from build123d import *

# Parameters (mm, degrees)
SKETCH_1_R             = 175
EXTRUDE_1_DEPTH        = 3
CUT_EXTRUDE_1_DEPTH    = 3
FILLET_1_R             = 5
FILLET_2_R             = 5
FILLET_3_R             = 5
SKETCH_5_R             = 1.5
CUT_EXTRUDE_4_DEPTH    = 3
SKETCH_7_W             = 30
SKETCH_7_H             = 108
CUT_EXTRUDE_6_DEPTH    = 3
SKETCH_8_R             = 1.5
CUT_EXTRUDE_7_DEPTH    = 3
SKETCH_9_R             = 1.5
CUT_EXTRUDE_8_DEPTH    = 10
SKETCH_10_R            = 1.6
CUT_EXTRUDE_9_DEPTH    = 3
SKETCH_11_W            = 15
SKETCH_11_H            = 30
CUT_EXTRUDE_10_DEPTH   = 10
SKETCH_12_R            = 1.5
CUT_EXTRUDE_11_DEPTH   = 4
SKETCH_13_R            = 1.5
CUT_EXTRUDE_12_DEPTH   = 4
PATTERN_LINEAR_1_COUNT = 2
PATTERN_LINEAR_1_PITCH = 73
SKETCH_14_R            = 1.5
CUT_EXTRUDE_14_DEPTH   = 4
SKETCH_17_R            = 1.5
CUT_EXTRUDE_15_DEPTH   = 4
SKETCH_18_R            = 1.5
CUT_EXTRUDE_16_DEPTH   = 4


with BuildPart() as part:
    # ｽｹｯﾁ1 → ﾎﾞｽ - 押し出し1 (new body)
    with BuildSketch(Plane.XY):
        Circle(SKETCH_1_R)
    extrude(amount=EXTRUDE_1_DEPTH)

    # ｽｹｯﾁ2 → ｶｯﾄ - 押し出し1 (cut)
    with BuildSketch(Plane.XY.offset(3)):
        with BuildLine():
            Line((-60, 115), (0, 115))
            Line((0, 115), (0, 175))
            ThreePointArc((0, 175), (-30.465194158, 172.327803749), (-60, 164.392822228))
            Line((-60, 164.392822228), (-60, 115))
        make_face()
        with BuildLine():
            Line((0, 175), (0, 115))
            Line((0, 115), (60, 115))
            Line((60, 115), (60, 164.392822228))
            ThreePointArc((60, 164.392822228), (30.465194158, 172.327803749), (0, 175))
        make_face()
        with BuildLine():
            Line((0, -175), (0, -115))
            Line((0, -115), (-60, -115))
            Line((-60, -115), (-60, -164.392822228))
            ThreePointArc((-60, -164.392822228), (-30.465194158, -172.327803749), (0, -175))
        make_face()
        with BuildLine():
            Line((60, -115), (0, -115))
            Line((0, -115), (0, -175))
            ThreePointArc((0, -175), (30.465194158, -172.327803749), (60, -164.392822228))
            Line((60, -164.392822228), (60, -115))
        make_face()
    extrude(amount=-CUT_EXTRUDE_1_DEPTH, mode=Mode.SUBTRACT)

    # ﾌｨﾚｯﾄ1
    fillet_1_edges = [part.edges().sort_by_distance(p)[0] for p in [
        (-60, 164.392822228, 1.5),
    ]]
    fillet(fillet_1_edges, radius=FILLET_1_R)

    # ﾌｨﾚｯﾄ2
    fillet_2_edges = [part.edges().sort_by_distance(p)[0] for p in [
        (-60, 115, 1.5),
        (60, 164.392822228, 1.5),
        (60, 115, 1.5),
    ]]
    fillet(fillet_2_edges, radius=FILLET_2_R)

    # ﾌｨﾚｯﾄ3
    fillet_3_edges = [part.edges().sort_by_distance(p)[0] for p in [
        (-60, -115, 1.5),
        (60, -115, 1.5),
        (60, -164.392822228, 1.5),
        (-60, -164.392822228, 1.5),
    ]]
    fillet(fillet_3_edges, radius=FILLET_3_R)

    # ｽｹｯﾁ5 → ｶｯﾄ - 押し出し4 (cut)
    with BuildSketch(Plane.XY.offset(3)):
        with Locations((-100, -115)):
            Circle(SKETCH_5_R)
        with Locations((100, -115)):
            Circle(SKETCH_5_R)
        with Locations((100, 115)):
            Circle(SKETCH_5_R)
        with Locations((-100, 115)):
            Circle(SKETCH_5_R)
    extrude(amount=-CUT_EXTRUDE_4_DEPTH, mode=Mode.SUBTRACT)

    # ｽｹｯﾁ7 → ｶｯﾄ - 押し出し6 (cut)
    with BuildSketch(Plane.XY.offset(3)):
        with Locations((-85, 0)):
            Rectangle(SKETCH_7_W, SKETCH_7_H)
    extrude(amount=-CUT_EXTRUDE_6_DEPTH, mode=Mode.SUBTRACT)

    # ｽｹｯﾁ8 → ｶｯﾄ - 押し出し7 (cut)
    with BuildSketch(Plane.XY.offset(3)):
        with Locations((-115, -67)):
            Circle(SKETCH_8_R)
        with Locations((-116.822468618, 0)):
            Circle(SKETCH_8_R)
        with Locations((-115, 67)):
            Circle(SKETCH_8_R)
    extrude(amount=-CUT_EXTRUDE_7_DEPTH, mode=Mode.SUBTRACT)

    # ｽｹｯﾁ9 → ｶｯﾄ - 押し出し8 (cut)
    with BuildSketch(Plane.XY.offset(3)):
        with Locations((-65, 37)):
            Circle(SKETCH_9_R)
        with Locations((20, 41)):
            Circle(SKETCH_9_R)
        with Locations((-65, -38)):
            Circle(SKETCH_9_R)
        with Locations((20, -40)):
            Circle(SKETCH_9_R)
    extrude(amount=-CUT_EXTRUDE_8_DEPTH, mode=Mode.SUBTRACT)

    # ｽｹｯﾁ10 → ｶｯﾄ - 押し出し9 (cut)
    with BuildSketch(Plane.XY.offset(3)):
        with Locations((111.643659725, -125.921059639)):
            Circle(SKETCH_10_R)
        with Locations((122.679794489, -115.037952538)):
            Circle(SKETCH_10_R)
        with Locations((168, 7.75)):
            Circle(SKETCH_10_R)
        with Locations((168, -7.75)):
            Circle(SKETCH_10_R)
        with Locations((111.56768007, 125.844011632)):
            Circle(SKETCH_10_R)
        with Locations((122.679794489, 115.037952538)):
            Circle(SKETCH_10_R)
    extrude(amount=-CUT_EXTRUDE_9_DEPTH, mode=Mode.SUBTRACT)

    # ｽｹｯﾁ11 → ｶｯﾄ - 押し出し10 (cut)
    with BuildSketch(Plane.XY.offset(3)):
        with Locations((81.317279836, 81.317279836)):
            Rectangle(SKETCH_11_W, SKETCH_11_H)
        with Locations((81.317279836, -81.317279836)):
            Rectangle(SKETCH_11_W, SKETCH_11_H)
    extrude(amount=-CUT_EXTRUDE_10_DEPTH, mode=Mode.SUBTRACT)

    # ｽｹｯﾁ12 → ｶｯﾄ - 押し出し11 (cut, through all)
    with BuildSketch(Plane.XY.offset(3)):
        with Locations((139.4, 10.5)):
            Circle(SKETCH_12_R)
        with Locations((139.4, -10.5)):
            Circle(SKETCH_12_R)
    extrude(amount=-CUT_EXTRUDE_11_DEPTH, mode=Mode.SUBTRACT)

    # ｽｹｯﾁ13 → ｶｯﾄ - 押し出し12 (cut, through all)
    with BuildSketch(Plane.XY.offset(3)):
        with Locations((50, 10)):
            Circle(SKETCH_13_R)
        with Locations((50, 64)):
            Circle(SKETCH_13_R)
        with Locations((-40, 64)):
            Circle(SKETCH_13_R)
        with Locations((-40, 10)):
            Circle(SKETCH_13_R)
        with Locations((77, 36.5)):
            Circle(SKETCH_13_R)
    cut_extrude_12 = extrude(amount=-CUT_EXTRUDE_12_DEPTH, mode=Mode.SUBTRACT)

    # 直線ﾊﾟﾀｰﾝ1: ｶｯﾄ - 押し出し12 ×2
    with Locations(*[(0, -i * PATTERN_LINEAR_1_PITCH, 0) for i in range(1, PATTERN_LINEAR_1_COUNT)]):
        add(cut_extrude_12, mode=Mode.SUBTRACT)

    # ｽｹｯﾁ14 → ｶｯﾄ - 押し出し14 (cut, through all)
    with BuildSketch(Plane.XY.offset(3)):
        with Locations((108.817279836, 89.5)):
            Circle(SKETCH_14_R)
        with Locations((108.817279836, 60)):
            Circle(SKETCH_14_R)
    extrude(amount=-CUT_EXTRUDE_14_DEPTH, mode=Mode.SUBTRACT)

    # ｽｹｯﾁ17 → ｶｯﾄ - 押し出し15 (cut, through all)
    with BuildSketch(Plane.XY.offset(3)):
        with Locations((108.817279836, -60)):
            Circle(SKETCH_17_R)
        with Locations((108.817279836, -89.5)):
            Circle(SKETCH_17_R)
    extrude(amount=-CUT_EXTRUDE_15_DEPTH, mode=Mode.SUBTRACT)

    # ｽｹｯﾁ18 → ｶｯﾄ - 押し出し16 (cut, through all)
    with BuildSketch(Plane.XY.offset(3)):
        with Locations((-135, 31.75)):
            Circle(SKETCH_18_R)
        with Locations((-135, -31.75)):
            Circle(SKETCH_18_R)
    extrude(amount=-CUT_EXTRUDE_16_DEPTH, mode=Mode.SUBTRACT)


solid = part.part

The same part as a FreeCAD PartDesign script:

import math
import FreeCAD as App
import Part
import Sketcher

V = App.Vector


def edges_at(feature, points):
    """Names of the edges that pass closest to the given points."""
    edges = feature.Shape.Edges
    near = lambda p: min(range(len(edges)), key=lambda i: edges[i].distToShape(Part.Vertex(*p))[0])
    return sorted({f"Edge{near(p) + 1}" for p in points})

doc = App.newDocument("Part")
body = doc.addObject("PartDesign::Body", "Body")

sketch1 = doc.addObject("Sketcher::SketchObject", "Sketch")
body.addObject(sketch1)
sketch1.AttachmentSupport = (doc.XY_Plane, [""])
sketch1.MapMode = "FlatFace"
sketch1.addGeometry(Part.Circle(V(0, 0, 0), V(0, 0, 1), 175), False)
sketch1.addConstraint([
    Sketcher.Constraint("Coincident", 0, 3, -1, 1),
    Sketcher.Constraint("Diameter", 0, 350.0),
])
pad1 = doc.addObject("PartDesign::Pad", "Pad")
body.addObject(pad1)
pad1.Profile = sketch1
pad1.Length = 3

sketch2 = doc.addObject("Sketcher::SketchObject", "Sketch001")
body.addObject(sketch2)
sketch2.AttachmentSupport = (doc.XY_Plane, [""])
sketch2.MapMode = "FlatFace"
sketch2.AttachmentOffset = App.Placement(V(0, 0, 3), App.Rotation())
sketch2.addGeometry([
    Part.LineSegment(V(-60, 115, 0), V(60, 115, 0)),
    Part.LineSegment(V(60, 115, 0), V(60, 164, 0)),
    Part.ArcOfCircle(Part.Circle(V(0, 0, 0), V(0, 0, 1), 175), math.radians(70), math.radians(90)),
    Part.ArcOfCircle(Part.Circle(V(0, 0, 0), V(0, 0, 1), 175), math.radians(90), math.radians(110)),
    Part.LineSegment(V(-60, 164, 0), V(-60, 115, 0)),
    Part.LineSegment(V(-60, -115, 0), V(-60, -164, 0)),
    Part.ArcOfCircle(Part.Circle(V(0, 0, 0), V(0, 0, 1), 175), math.radians(-110), math.radians(-90)),
    Part.ArcOfCircle(Part.Circle(V(0, 0, 0), V(0, 0, 1), 175), math.radians(-90), math.radians(-70)),
    Part.LineSegment(V(60, -164, 0), V(60, -115, 0)),
    Part.LineSegment(V(60, -115, 0), V(-60, -115, 0)),
], False)
sketch2.addConstraint([
    Sketcher.Constraint("Coincident", 0, 2, 1, 1),
    Sketcher.Constraint("Coincident", 1, 2, 2, 1),
    Sketcher.Constraint("Tangent", 2, 2, 3, 1),
    Sketcher.Constraint("Coincident", 3, 2, 4, 1),
    Sketcher.Constraint("Coincident", 4, 2, 0, 1),
    Sketcher.Constraint("Coincident", 5, 2, 6, 1),
    Sketcher.Constraint("Tangent", 6, 2, 7, 1),
    Sketcher.Constraint("Coincident", 7, 2, 8, 1),
    Sketcher.Constraint("Coincident", 8, 2, 9, 1),
    Sketcher.Constraint("Coincident", 9, 2, 5, 1),
    Sketcher.Constraint("Horizontal", 0),
    Sketcher.Constraint("Vertical", 1),
    Sketcher.Constraint("Vertical", 4),
    Sketcher.Constraint("Vertical", 5),
    Sketcher.Constraint("Vertical", 8),
    Sketcher.Constraint("Horizontal", 9),
    Sketcher.Constraint("Coincident", 2, 3, -1, 1),
    Sketcher.Constraint("Coincident", 6, 3, -1, 1),
    Sketcher.Constraint("Equal", 2, 3),
    Sketcher.Constraint("Equal", 3, 6),
    Sketcher.Constraint("Equal", 6, 7),
    Sketcher.Constraint("Symmetric", 4, 2, 8, 2, -1, 1),
    Sketcher.Constraint("PointOnObject", 2, 2, -2),
    Sketcher.Constraint("PointOnObject", 6, 2, -2),
    Sketcher.Constraint("Horizontal", 1, 2, 3, 2),
    Sketcher.Constraint("Horizontal", 5, 2, 7, 2),
    Sketcher.Constraint("Radius", 2, 175.0),
    Sketcher.Constraint("DistanceX", 0, 1, 0, 2, 120.0),
    Sketcher.Constraint("DistanceY", -1, 1, 0, 2, 115.0),
])
pocket1 = doc.addObject("PartDesign::Pocket", "Pocket")
body.addObject(pocket1)
pocket1.Profile = sketch2
pocket1.Length = 3
doc.recompute()

fillet = doc.addObject("PartDesign::Fillet", "Fillet")
body.addObject(fillet)
fillet.Base = (pocket1, edges_at(pocket1, [(-60, 164.393, 1.5)]))
fillet.Radius = 5
doc.recompute()

fillet2 = doc.addObject("PartDesign::Fillet", "Fillet001")
body.addObject(fillet2)
fillet2.Base = (fillet, edges_at(fillet, [(-60, 115, 1.5), (60, 164.393, 1.5), (60, 115, 1.5)]))
fillet2.Radius = 5
doc.recompute()

fillet3 = doc.addObject("PartDesign::Fillet", "Fillet002")
body.addObject(fillet3)
fillet3.Base = (fillet2, edges_at(fillet2, [
    (-60, -115, 1.5),
    (60, -115, 1.5),
    (60, -164.393, 1.5),
    (-60, -164.393, 1.5),
]))
fillet3.Radius = 5

sketch3 = doc.addObject("Sketcher::SketchObject", "Sketch002")
body.addObject(sketch3)
sketch3.AttachmentSupport = (doc.XY_Plane, [""])
sketch3.MapMode = "FlatFace"
sketch3.AttachmentOffset = App.Placement(V(0, 0, 3), App.Rotation())
sketch3.addGeometry([
    Part.Circle(V(-100, -115, 0), V(0, 0, 1), 1.5),
    Part.Circle(V(100, -115, 0), V(0, 0, 1), 1.5),
    Part.Circle(V(100, 115, 0), V(0, 0, 1), 1.5),
    Part.Circle(V(-100, 115, 0), V(0, 0, 1), 1.5),
], False)
sketch3.addConstraint([
    Sketcher.Constraint("Equal", 0, 1),
    Sketcher.Constraint("Equal", 1, 2),
    Sketcher.Constraint("Equal", 2, 3),
    Sketcher.Constraint("Symmetric", 0, 3, 2, 3, -1, 1),
    Sketcher.Constraint("Symmetric", 1, 3, 3, 3, -1, 1),
    Sketcher.Constraint("Symmetric", 0, 3, 1, 3, -2),
    Sketcher.Constraint("Diameter", 0, 3.0),
    Sketcher.Constraint("DistanceX", 0, 3, -1, 1, 100.0),
    Sketcher.Constraint("DistanceY", 0, 3, -1, 1, 115.0),
])
pocket2 = doc.addObject("PartDesign::Pocket", "Pocket001")
body.addObject(pocket2)
pocket2.Profile = sketch3
pocket2.Length = 3

sketch4 = doc.addObject("Sketcher::SketchObject", "Sketch003")
body.addObject(sketch4)
sketch4.AttachmentSupport = (doc.XY_Plane, [""])
sketch4.MapMode = "FlatFace"
sketch4.AttachmentOffset = App.Placement(V(0, 0, 3), App.Rotation())
sketch4.addGeometry([
    Part.LineSegment(V(-100, 54, 0), V(-100, -54, 0)),
    Part.LineSegment(V(-100, -54, 0), V(-70, -54, 0)),
    Part.LineSegment(V(-70, -54, 0), V(-70, 54, 0)),
    Part.LineSegment(V(-70, 54, 0), V(-100, 54, 0)),
], False)
sketch4.addConstraint([
    Sketcher.Constraint("Coincident", 0, 2, 1, 1),
    Sketcher.Constraint("Coincident", 1, 2, 2, 1),
    Sketcher.Constraint("Coincident", 2, 2, 3, 1),
    Sketcher.Constraint("Coincident", 3, 2, 0, 1),
    Sketcher.Constraint("Vertical", 0),
    Sketcher.Constraint("Horizontal", 1),
    Sketcher.Constraint("Vertical", 2),
    Sketcher.Constraint("Horizontal", 3),
    Sketcher.Constraint("DistanceX", 1, 1, 1, 2, 30.0),
    Sketcher.Constraint("DistanceY", 0, 2, 0, 1, 108.0),
    Sketcher.Constraint("DistanceX", 0, 2, -1, 1, 100.0),
    Sketcher.Constraint("DistanceY", 0, 2, -1, 1, 54.0),
])
pocket3 = doc.addObject("PartDesign::Pocket", "Pocket002")
body.addObject(pocket3)
pocket3.Profile = sketch4
pocket3.Length = 3

sketch5 = doc.addObject("Sketcher::SketchObject", "Sketch004")
body.addObject(sketch5)
sketch5.AttachmentSupport = (doc.XY_Plane, [""])
sketch5.MapMode = "FlatFace"
sketch5.AttachmentOffset = App.Placement(V(0, 0, 3), App.Rotation())
sketch5.addGeometry([
    Part.Circle(V(-115, -67, 0), V(0, 0, 1), 1.5),
    Part.Circle(V(-116.8, 0, 0), V(0, 0, 1), 1.5),
    Part.Circle(V(-115, 67, 0), V(0, 0, 1), 1.5),
], False)
sketch5.addConstraint([
    Sketcher.Constraint("Equal", 0, 1),
    Sketcher.Constraint("Equal", 1, 2),
    Sketcher.Constraint("Symmetric", 0, 3, 2, 3, -1),
    Sketcher.Constraint("PointOnObject", 1, 3, -1),
    Sketcher.Constraint("Diameter", 0, 3.0),
    Sketcher.Constraint("DistanceX", 0, 3, -1, 1, 115.0),
    Sketcher.Constraint("DistanceY", 0, 3, -1, 1, 67.0),
    Sketcher.Constraint("DistanceX", 1, 3, -1, 1, 116.822469),
])
pocket4 = doc.addObject("PartDesign::Pocket", "Pocket003")
body.addObject(pocket4)
pocket4.Profile = sketch5
pocket4.Length = 3

sketch6 = doc.addObject("Sketcher::SketchObject", "Sketch005")
body.addObject(sketch6)
sketch6.AttachmentSupport = (doc.XY_Plane, [""])
sketch6.MapMode = "FlatFace"
sketch6.AttachmentOffset = App.Placement(V(0, 0, 3), App.Rotation())
sketch6.addGeometry([
    Part.Circle(V(-65, 37, 0), V(0, 0, 1), 1.5),
    Part.Circle(V(20, 41, 0), V(0, 0, 1), 1.5),
    Part.Circle(V(-65, -38, 0), V(0, 0, 1), 1.5),
    Part.Circle(V(20, -40, 0), V(0, 0, 1), 1.5),
], False)
sketch6.addConstraint([
    Sketcher.Constraint("Equal", 0, 1),
    Sketcher.Constraint("Equal", 1, 2),
    Sketcher.Constraint("Equal", 2, 3),
    Sketcher.Constraint("Vertical", 0, 3, 2, 3),
    Sketcher.Constraint("Vertical", 1, 3, 3, 3),
    Sketcher.Constraint("Diameter", 0, 3.0),
    Sketcher.Constraint("DistanceX", 0, 3, -1, 1, 65.0),
    Sketcher.Constraint("DistanceY", -1, 1, 0, 3, 37.0),
    Sketcher.Constraint("DistanceX", -1, 1, 1, 3, 20.0),
    Sketcher.Constraint("DistanceY", -1, 1, 1, 3, 41.0),
    Sketcher.Constraint("DistanceY", 2, 3, -1, 1, 38.0),
    Sketcher.Constraint("DistanceY", 3, 3, -1, 1, 40.0),
])
pocket5 = doc.addObject("PartDesign::Pocket", "Pocket004")
body.addObject(pocket5)
pocket5.Profile = sketch6
pocket5.Length = 10

sketch7 = doc.addObject("Sketcher::SketchObject", "Sketch006")
body.addObject(sketch7)
sketch7.AttachmentSupport = (doc.XY_Plane, [""])
sketch7.MapMode = "FlatFace"
sketch7.AttachmentOffset = App.Placement(V(0, 0, 3), App.Rotation())
sketch7.addGeometry([
    Part.Circle(V(111.6, -125.9, 0), V(0, 0, 1), 1.6),
    Part.Circle(V(122.7, -115, 0), V(0, 0, 1), 1.6),
    Part.Circle(V(168, 7.8, 0), V(0, 0, 1), 1.6),
    Part.Circle(V(168, -7.8, 0), V(0, 0, 1), 1.6),
    Part.Circle(V(111.6, 125.8, 0), V(0, 0, 1), 1.6),
    Part.Circle(V(122.7, 115, 0), V(0, 0, 1), 1.6),
], False)
sketch7.addConstraint([
    Sketcher.Constraint("Equal", 0, 1),
    Sketcher.Constraint("Equal", 1, 2),
    Sketcher.Constraint("Equal", 2, 3),
    Sketcher.Constraint("Equal", 3, 4),
    Sketcher.Constraint("Equal", 4, 5),
    Sketcher.Constraint("Symmetric", 2, 3, 3, 3, -1),
    Sketcher.Constraint("Symmetric", 1, 3, 5, 3, -1),
    Sketcher.Constraint("Diameter", 0, 3.2),
    Sketcher.Constraint("DistanceX", -1, 1, 2, 3, 168.0),
    Sketcher.Constraint("DistanceY", 3, 3, 2, 3, 15.5),
    Sketcher.Constraint("DistanceX", -1, 1, 0, 3, 111.64366),
    Sketcher.Constraint("DistanceY", 0, 3, -1, 1, 125.92106),
    Sketcher.Constraint("DistanceX", -1, 1, 4, 3, 111.56768),
    Sketcher.Constraint("DistanceY", -1, 1, 4, 3, 125.844012),
    Sketcher.Constraint("DistanceY", 5, 3, 4, 3, 10.806059),
    Sketcher.Constraint("DistanceX", -1, 1, 1, 3, 122.679794),
])
pocket6 = doc.addObject("PartDesign::Pocket", "Pocket005")
body.addObject(pocket6)
pocket6.Profile = sketch7
pocket6.Length = 3

sketch8 = doc.addObject("Sketcher::SketchObject", "Sketch007")
body.addObject(sketch8)
sketch8.AttachmentSupport = (doc.XY_Plane, [""])
sketch8.MapMode = "FlatFace"
sketch8.AttachmentOffset = App.Placement(V(0, 0, 3), App.Rotation())
sketch8.addGeometry([
    Part.LineSegment(V(74, 96, 0), V(74, 66, 0)),
    Part.LineSegment(V(74, 66, 0), V(89, 66, 0)),
    Part.LineSegment(V(89, 66, 0), V(89, 96, 0)),
    Part.LineSegment(V(89, 96, 0), V(74, 96, 0)),
    Part.LineSegment(V(74, -66, 0), V(74, -96, 0)),
    Part.LineSegment(V(74, -96, 0), V(89, -96, 0)),
    Part.LineSegment(V(89, -96, 0), V(89, -66, 0)),
    Part.LineSegment(V(89, -66, 0), V(74, -66, 0)),
], False)
sketch8.addConstraint([
    Sketcher.Constraint("Coincident", 0, 2, 1, 1),
    Sketcher.Constraint("Coincident", 1, 2, 2, 1),
    Sketcher.Constraint("Coincident", 2, 2, 3, 1),
    Sketcher.Constraint("Coincident", 3, 2, 0, 1),
    Sketcher.Constraint("Coincident", 4, 2, 5, 1),
    Sketcher.Constraint("Coincident", 5, 2, 6, 1),
    Sketcher.Constraint("Coincident", 6, 2, 7, 1),
    Sketcher.Constraint("Coincident", 7, 2, 4, 1),
    Sketcher.Constraint("Vertical", 0),
    Sketcher.Constraint("Horizontal", 1),
    Sketcher.Constraint("Vertical", 2),
    Sketcher.Constraint("Horizontal", 3),
    Sketcher.Constraint("Vertical", 4),
    Sketcher.Constraint("Horizontal", 5),
    Sketcher.Constraint("Vertical", 6),
    Sketcher.Constraint("Horizontal", 7),
    Sketcher.Constraint("Symmetric", 3, 2, 4, 2, -1),
    Sketcher.Constraint("Symmetric", 1, 2, 6, 2, -1),
    Sketcher.Constraint("DistanceX", 1, 1, 1, 2, 15.0),
    Sketcher.Constraint("DistanceY", 0, 2, 0, 1, 30.0),
    Sketcher.Constraint("DistanceX", -1, 1, 0, 2, 73.81728),
    Sketcher.Constraint("DistanceY", -1, 1, 0, 2, 66.31728),
])
pocket7 = doc.addObject("PartDesign::Pocket", "Pocket006")
body.addObject(pocket7)
pocket7.Profile = sketch8
pocket7.Length = 10

sketch9 = doc.addObject("Sketcher::SketchObject", "Sketch008")
body.addObject(sketch9)
sketch9.AttachmentSupport = (doc.XY_Plane, [""])
sketch9.MapMode = "FlatFace"
sketch9.AttachmentOffset = App.Placement(V(0, 0, 3), App.Rotation())
sketch9.addGeometry([
    Part.Circle(V(139.4, 10.5, 0), V(0, 0, 1), 1.5),
    Part.Circle(V(139.4, -10.5, 0), V(0, 0, 1), 1.5),
], False)
sketch9.addConstraint([
    Sketcher.Constraint("Equal", 0, 1),
    Sketcher.Constraint("Symmetric", 0, 3, 1, 3, -1),
    Sketcher.Constraint("Diameter", 0, 3.0),
    Sketcher.Constraint("DistanceY", 1, 3, 0, 3, 21.0),
    Sketcher.Constraint("DistanceX", -1, 1, 0, 3, 139.4),
])
pocket8 = doc.addObject("PartDesign::Pocket", "Pocket007")
body.addObject(pocket8)
pocket8.Profile = sketch9
pocket8.Type = "ThroughAll"

sketch10 = doc.addObject("Sketcher::SketchObject", "Sketch009")
body.addObject(sketch10)
sketch10.AttachmentSupport = (doc.XY_Plane, [""])
sketch10.MapMode = "FlatFace"
sketch10.AttachmentOffset = App.Placement(V(0, 0, 3), App.Rotation())
sketch10.addGeometry([
    Part.Circle(V(50, 10, 0), V(0, 0, 1), 1.5),
    Part.Circle(V(50, 64, 0), V(0, 0, 1), 1.5),
    Part.Circle(V(-40, 64, 0), V(0, 0, 1), 1.5),
    Part.Circle(V(-40, 10, 0), V(0, 0, 1), 1.5),
    Part.Circle(V(77, 36.5, 0), V(0, 0, 1), 1.5),
], False)
sketch10.addConstraint([
    Sketcher.Constraint("Equal", 0, 1),
    Sketcher.Constraint("Equal", 1, 2),
    Sketcher.Constraint("Equal", 2, 3),
    Sketcher.Constraint("Equal", 3, 4),
    Sketcher.Constraint("Horizontal", 1, 3, 2, 3),
    Sketcher.Constraint("Horizontal", 0, 3, 3, 3),
    Sketcher.Constraint("Vertical", 0, 3, 1, 3),
    Sketcher.Constraint("Vertical", 2, 3, 3, 3),
    Sketcher.Constraint("Diameter", 0, 3.0),
    Sketcher.Constraint("DistanceX", -1, 1, 0, 3, 50.0),
    Sketcher.Constraint("DistanceY", -1, 1, 0, 3, 10.0),
    Sketcher.Constraint("DistanceY", -1, 1, 1, 3, 64.0),
    Sketcher.Constraint("DistanceX", 2, 3, -1, 1, 40.0),
    Sketcher.Constraint("DistanceX", -1, 1, 4, 3, 77.0),
    Sketcher.Constraint("DistanceY", -1, 1, 4, 3, 36.5),
])
pocket9 = doc.addObject("PartDesign::Pocket", "Pocket008")
body.addObject(pocket9)
pocket9.Profile = sketch10
pocket9.Type = "ThroughAll"
doc.recompute()

linearpattern = doc.addObject("PartDesign::LinearPattern", "LinearPattern")
body.addObject(linearpattern)
linearpattern.Originals = [pocket9]
linearpattern.Direction = (doc.Y_Axis, [""])
linearpattern.Mode = "offset"
linearpattern.Offset = 73
linearpattern.Occurrences = 2
linearpattern.Reversed = True
body.Tip = linearpattern

sketch11 = doc.addObject("Sketcher::SketchObject", "Sketch010")
body.addObject(sketch11)
sketch11.AttachmentSupport = (doc.XY_Plane, [""])
sketch11.MapMode = "FlatFace"
sketch11.AttachmentOffset = App.Placement(V(0, 0, 3), App.Rotation())
sketch11.addGeometry([
    Part.Circle(V(108.8, 89.5, 0), V(0, 0, 1), 1.5),
    Part.Circle(V(108.8, 60, 0), V(0, 0, 1), 1.5),
], False)
sketch11.addConstraint([
    Sketcher.Constraint("Equal", 0, 1),
    Sketcher.Constraint("Vertical", 0, 3, 1, 3),
    Sketcher.Constraint("Diameter", 0, 3.0),
    Sketcher.Constraint("DistanceY", -1, 1, 1, 3, 60.0),
    Sketcher.Constraint("DistanceY", -1, 1, 0, 3, 89.5),
    Sketcher.Constraint("DistanceX", -1, 1, 0, 3, 108.81728),
])
pocket10 = doc.addObject("PartDesign::Pocket", "Pocket009")
body.addObject(pocket10)
pocket10.Profile = sketch11
pocket10.Type = "ThroughAll"

sketch12 = doc.addObject("Sketcher::SketchObject", "Sketch011")
body.addObject(sketch12)
sketch12.AttachmentSupport = (doc.XY_Plane, [""])
sketch12.MapMode = "FlatFace"
sketch12.AttachmentOffset = App.Placement(V(0, 0, 3), App.Rotation())
sketch12.addGeometry([
    Part.Circle(V(108.8, -60, 0), V(0, 0, 1), 1.5),
    Part.Circle(V(108.8, -89.5, 0), V(0, 0, 1), 1.5),
], False)
sketch12.addConstraint([
    Sketcher.Constraint("Equal", 0, 1),
    Sketcher.Constraint("Vertical", 0, 3, 1, 3),
    Sketcher.Constraint("Diameter", 0, 3.0),
    Sketcher.Constraint("DistanceY", 0, 3, -1, 1, 60.0),
    Sketcher.Constraint("DistanceY", 1, 3, -1, 1, 89.5),
    Sketcher.Constraint("DistanceX", -1, 1, 0, 3, 108.81728),
])
pocket11 = doc.addObject("PartDesign::Pocket", "Pocket010")
body.addObject(pocket11)
pocket11.Profile = sketch12
pocket11.Type = "ThroughAll"

sketch13 = doc.addObject("Sketcher::SketchObject", "Sketch012")
body.addObject(sketch13)
sketch13.AttachmentSupport = (doc.XY_Plane, [""])
sketch13.MapMode = "FlatFace"
sketch13.AttachmentOffset = App.Placement(V(0, 0, 3), App.Rotation())
sketch13.addGeometry([
    Part.Circle(V(-135, 31.8, 0), V(0, 0, 1), 1.5),
    Part.Circle(V(-135, -31.8, 0), V(0, 0, 1), 1.5),
], False)
sketch13.addConstraint([
    Sketcher.Constraint("Equal", 0, 1),
    Sketcher.Constraint("Symmetric", 0, 3, 1, 3, -1),
    Sketcher.Constraint("Diameter", 0, 3.0),
    Sketcher.Constraint("DistanceX", 0, 3, -1, 1, 135.0),
    Sketcher.Constraint("DistanceY", 1, 3, 0, 3, 63.5),
])
pocket12 = doc.addObject("PartDesign::Pocket", "Pocket011")
body.addObject(pocket12)
pocket12.Profile = sketch13
pocket12.Type = "ThroughAll"

doc.recompute()
